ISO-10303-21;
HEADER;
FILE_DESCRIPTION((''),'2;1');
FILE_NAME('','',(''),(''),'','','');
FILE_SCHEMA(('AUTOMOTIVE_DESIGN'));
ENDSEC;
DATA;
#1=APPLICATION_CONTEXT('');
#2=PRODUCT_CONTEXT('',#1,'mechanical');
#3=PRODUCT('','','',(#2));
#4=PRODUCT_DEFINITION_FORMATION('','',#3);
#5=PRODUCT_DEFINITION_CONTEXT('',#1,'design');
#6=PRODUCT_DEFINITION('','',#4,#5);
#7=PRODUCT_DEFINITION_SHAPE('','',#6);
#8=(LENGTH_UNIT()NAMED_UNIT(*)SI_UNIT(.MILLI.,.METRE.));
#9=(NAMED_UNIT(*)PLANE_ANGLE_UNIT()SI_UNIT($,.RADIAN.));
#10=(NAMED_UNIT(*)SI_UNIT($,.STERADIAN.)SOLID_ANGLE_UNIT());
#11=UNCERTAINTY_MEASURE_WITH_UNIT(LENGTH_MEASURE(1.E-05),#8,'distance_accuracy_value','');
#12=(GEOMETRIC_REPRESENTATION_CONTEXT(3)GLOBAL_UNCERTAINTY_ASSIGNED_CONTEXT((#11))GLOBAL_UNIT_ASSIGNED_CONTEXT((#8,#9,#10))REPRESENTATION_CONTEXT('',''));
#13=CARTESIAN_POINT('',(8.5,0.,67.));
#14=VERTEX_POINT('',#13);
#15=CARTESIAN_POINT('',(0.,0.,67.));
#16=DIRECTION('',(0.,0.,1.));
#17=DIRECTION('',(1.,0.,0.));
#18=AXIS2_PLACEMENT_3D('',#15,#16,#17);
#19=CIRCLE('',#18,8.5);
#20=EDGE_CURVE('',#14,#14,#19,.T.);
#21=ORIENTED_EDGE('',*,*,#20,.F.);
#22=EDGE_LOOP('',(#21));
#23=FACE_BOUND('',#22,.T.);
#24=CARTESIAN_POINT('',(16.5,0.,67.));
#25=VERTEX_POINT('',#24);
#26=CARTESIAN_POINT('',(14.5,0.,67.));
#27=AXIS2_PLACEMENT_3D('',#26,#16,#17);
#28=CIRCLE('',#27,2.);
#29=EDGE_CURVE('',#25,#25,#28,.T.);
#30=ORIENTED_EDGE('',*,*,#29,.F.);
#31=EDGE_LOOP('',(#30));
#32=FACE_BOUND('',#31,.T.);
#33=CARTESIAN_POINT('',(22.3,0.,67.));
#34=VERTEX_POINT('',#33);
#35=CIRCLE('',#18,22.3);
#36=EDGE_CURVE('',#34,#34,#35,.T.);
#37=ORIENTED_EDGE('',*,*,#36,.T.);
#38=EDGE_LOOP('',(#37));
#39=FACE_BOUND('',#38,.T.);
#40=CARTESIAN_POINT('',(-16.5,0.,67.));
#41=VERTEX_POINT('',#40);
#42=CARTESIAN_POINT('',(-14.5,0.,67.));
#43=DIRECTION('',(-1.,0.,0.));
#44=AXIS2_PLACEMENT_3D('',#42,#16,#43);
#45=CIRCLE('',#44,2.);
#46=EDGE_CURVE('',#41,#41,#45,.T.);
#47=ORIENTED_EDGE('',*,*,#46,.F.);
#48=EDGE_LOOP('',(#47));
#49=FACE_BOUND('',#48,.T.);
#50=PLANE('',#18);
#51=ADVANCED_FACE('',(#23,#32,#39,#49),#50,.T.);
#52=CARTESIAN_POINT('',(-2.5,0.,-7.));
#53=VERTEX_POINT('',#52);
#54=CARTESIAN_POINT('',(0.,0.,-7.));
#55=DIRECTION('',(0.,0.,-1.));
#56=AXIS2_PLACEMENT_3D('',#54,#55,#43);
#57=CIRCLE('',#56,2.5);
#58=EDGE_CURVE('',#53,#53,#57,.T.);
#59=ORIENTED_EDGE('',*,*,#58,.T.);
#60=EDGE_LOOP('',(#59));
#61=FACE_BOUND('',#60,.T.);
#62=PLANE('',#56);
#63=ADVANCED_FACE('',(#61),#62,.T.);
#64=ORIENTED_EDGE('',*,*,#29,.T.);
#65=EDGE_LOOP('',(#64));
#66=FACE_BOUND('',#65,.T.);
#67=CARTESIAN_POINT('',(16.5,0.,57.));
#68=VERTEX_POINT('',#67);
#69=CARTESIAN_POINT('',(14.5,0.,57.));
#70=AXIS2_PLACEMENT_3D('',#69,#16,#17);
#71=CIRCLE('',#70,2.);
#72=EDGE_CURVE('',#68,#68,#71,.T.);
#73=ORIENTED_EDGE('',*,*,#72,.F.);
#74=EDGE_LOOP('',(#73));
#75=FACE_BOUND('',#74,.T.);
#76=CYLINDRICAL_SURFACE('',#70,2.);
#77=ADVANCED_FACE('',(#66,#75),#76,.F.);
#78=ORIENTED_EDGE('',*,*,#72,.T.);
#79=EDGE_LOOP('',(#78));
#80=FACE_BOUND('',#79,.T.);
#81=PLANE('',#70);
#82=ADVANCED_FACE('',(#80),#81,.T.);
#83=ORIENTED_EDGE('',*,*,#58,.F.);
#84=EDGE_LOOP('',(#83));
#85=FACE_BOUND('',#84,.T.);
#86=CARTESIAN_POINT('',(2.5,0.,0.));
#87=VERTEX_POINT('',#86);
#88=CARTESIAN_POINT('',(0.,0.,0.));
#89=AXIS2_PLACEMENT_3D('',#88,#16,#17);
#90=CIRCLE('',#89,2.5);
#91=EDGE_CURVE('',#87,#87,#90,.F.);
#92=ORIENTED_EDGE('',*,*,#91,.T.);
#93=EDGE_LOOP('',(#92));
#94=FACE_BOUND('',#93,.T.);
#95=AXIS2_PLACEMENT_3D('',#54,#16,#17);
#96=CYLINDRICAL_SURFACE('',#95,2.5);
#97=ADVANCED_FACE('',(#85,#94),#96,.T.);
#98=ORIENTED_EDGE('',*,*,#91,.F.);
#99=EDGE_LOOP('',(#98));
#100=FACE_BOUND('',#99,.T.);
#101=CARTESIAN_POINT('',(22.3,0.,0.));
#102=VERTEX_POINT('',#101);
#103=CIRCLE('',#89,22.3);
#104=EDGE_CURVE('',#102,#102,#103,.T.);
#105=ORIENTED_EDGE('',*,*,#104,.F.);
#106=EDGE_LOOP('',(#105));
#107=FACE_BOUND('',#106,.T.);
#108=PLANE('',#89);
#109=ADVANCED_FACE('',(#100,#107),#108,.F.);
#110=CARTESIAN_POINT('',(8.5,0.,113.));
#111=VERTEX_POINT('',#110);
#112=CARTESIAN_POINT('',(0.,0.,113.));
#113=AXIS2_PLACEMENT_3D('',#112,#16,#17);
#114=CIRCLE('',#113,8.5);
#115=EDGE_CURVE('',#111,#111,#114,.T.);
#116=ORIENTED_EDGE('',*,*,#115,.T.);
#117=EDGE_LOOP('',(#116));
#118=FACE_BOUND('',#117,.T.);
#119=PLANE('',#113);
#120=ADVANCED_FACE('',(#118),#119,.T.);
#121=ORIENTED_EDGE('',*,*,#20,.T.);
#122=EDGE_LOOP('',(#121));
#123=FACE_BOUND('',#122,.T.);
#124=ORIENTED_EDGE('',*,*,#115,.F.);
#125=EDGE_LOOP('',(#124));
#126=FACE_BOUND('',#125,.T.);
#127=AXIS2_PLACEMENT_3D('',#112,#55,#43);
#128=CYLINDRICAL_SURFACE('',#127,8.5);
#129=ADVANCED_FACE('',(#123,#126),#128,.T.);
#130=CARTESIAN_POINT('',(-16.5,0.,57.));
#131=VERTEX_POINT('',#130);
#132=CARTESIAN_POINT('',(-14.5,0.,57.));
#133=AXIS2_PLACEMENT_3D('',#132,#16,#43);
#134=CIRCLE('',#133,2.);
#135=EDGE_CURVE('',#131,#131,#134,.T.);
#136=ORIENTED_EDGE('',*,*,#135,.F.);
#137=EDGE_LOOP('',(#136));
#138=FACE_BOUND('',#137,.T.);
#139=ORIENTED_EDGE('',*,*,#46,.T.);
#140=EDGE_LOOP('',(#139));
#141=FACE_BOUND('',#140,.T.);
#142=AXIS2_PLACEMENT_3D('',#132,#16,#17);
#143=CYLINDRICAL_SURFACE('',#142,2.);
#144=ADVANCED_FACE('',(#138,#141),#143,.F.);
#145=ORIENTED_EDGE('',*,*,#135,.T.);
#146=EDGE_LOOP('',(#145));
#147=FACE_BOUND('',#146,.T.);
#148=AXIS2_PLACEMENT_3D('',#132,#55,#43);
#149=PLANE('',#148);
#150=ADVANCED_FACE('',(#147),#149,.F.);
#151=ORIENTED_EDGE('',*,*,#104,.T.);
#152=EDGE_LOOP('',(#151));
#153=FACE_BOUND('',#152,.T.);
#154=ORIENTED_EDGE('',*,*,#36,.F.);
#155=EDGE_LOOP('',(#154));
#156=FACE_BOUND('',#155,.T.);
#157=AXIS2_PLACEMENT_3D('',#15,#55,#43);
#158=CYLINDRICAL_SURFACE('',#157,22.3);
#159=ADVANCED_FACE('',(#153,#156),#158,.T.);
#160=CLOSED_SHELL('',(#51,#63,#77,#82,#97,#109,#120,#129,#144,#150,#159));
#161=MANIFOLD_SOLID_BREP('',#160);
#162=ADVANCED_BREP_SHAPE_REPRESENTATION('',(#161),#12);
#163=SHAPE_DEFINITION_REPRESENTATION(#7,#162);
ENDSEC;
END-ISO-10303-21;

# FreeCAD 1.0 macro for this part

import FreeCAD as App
import Part
import Sketcher
from FreeCAD import Vector
Q = App.Units.Quantity

doc = App.newDocument("Part")
body = doc.addObject("PartDesign::Body", "Body")

# Sketch on XY plane
sketch1 = doc.addObject("Sketcher::SketchObject", "Sketch")
body.addObject(sketch1)
sketch1.AttachmentSupport = (doc.XY_Plane, [""])
sketch1.MapMode = "FlatFace"
sketch1.addGeometry(Part.Circle(Vector(0, 0, 0), Vector(0, 0, 1), 22), False)
sketch1.addConstraint([
    Sketcher.Constraint("Coincident", 0, 3, -1, 1),
    Sketcher.Constraint("Diameter", 0, Q("44.6 mm")),
])
pad1 = doc.addObject("PartDesign::Pad", "Pad")
body.addObject(pad1)
pad1.Profile = sketch1
pad1.Length = 67

# Sketch on XY plane
sketch2 = doc.addObject("Sketcher::SketchObject", "Sketch001")
body.addObject(sketch2)
sketch2.AttachmentSupport = (doc.XY_Plane, [""])
sketch2.MapMode = "FlatFace"
sketch2.AttachmentOffset = App.Placement(Vector(0, 0, 67), App.Rotation())
sketch2.addGeometry(Part.Circle(Vector(0, 0, 0), Vector(0, 0, 1), 8), False)
sketch2.addConstraint([
    Sketcher.Constraint("Coincident", 0, 3, -1, 1),
    Sketcher.Constraint("Diameter", 0, Q("17 mm")),
])
pad2 = doc.addObject("PartDesign::Pad", "Pad001")
body.addObject(pad2)
pad2.Profile = sketch2
pad2.Length = 46

# Sketch on XY plane
sketch3 = doc.addObject("Sketcher::SketchObject", "Sketch002")
body.addObject(sketch3)
sketch3.AttachmentSupport = (doc.XY_Plane, [""])
sketch3.MapMode = "FlatFace"
sketch3.addGeometry(Part.Circle(Vector(0, 0, 0), Vector(0, 0, 1), 2.5), False)
sketch3.addConstraint([
    Sketcher.Constraint("Coincident", 0, 3, -1, 1),
    Sketcher.Constraint("Diameter", 0, Q("5 mm")),
])
pad3 = doc.addObject("PartDesign::Pad", "Pad002")
body.addObject(pad3)
pad3.Profile = sketch3
pad3.Length = 7
pad3.Reversed = True

# Sketch on XY plane
sketch4 = doc.addObject("Sketcher::SketchObject", "Sketch003")
body.addObject(sketch4)
sketch4.AttachmentSupport = (doc.XY_Plane, [""])
sketch4.MapMode = "FlatFace"
sketch4.AttachmentOffset = App.Placement(Vector(0, 0, 67), App.Rotation())
sketch4.addGeometry([
    Part.Circle(Vector(14.5, 0, 0), Vector(0, 0, 1), 2),
    Part.Circle(Vector(-14.5, 0, 0), Vector(0, 0, 1), 2),
], False)
sketch4.addConstraint([
    Sketcher.Constraint("Equal", 0, 1),
    Sketcher.Constraint("Symmetric", 0, 3, 1, 3, -1, 1),
    Sketcher.Constraint("PointOnObject", 0, 3, -1),
    Sketcher.Constraint("Diameter", 0, Q("4 mm")),
    Sketcher.Constraint("DistanceX", 1, 3, 0, 3, Q("29 mm")),
])
pocket1 = doc.addObject("PartDesign::Pocket", "Pocket")
body.addObject(pocket1)
pocket1.Profile = sketch4
pocket1.Length = 10

doc.recompute()
